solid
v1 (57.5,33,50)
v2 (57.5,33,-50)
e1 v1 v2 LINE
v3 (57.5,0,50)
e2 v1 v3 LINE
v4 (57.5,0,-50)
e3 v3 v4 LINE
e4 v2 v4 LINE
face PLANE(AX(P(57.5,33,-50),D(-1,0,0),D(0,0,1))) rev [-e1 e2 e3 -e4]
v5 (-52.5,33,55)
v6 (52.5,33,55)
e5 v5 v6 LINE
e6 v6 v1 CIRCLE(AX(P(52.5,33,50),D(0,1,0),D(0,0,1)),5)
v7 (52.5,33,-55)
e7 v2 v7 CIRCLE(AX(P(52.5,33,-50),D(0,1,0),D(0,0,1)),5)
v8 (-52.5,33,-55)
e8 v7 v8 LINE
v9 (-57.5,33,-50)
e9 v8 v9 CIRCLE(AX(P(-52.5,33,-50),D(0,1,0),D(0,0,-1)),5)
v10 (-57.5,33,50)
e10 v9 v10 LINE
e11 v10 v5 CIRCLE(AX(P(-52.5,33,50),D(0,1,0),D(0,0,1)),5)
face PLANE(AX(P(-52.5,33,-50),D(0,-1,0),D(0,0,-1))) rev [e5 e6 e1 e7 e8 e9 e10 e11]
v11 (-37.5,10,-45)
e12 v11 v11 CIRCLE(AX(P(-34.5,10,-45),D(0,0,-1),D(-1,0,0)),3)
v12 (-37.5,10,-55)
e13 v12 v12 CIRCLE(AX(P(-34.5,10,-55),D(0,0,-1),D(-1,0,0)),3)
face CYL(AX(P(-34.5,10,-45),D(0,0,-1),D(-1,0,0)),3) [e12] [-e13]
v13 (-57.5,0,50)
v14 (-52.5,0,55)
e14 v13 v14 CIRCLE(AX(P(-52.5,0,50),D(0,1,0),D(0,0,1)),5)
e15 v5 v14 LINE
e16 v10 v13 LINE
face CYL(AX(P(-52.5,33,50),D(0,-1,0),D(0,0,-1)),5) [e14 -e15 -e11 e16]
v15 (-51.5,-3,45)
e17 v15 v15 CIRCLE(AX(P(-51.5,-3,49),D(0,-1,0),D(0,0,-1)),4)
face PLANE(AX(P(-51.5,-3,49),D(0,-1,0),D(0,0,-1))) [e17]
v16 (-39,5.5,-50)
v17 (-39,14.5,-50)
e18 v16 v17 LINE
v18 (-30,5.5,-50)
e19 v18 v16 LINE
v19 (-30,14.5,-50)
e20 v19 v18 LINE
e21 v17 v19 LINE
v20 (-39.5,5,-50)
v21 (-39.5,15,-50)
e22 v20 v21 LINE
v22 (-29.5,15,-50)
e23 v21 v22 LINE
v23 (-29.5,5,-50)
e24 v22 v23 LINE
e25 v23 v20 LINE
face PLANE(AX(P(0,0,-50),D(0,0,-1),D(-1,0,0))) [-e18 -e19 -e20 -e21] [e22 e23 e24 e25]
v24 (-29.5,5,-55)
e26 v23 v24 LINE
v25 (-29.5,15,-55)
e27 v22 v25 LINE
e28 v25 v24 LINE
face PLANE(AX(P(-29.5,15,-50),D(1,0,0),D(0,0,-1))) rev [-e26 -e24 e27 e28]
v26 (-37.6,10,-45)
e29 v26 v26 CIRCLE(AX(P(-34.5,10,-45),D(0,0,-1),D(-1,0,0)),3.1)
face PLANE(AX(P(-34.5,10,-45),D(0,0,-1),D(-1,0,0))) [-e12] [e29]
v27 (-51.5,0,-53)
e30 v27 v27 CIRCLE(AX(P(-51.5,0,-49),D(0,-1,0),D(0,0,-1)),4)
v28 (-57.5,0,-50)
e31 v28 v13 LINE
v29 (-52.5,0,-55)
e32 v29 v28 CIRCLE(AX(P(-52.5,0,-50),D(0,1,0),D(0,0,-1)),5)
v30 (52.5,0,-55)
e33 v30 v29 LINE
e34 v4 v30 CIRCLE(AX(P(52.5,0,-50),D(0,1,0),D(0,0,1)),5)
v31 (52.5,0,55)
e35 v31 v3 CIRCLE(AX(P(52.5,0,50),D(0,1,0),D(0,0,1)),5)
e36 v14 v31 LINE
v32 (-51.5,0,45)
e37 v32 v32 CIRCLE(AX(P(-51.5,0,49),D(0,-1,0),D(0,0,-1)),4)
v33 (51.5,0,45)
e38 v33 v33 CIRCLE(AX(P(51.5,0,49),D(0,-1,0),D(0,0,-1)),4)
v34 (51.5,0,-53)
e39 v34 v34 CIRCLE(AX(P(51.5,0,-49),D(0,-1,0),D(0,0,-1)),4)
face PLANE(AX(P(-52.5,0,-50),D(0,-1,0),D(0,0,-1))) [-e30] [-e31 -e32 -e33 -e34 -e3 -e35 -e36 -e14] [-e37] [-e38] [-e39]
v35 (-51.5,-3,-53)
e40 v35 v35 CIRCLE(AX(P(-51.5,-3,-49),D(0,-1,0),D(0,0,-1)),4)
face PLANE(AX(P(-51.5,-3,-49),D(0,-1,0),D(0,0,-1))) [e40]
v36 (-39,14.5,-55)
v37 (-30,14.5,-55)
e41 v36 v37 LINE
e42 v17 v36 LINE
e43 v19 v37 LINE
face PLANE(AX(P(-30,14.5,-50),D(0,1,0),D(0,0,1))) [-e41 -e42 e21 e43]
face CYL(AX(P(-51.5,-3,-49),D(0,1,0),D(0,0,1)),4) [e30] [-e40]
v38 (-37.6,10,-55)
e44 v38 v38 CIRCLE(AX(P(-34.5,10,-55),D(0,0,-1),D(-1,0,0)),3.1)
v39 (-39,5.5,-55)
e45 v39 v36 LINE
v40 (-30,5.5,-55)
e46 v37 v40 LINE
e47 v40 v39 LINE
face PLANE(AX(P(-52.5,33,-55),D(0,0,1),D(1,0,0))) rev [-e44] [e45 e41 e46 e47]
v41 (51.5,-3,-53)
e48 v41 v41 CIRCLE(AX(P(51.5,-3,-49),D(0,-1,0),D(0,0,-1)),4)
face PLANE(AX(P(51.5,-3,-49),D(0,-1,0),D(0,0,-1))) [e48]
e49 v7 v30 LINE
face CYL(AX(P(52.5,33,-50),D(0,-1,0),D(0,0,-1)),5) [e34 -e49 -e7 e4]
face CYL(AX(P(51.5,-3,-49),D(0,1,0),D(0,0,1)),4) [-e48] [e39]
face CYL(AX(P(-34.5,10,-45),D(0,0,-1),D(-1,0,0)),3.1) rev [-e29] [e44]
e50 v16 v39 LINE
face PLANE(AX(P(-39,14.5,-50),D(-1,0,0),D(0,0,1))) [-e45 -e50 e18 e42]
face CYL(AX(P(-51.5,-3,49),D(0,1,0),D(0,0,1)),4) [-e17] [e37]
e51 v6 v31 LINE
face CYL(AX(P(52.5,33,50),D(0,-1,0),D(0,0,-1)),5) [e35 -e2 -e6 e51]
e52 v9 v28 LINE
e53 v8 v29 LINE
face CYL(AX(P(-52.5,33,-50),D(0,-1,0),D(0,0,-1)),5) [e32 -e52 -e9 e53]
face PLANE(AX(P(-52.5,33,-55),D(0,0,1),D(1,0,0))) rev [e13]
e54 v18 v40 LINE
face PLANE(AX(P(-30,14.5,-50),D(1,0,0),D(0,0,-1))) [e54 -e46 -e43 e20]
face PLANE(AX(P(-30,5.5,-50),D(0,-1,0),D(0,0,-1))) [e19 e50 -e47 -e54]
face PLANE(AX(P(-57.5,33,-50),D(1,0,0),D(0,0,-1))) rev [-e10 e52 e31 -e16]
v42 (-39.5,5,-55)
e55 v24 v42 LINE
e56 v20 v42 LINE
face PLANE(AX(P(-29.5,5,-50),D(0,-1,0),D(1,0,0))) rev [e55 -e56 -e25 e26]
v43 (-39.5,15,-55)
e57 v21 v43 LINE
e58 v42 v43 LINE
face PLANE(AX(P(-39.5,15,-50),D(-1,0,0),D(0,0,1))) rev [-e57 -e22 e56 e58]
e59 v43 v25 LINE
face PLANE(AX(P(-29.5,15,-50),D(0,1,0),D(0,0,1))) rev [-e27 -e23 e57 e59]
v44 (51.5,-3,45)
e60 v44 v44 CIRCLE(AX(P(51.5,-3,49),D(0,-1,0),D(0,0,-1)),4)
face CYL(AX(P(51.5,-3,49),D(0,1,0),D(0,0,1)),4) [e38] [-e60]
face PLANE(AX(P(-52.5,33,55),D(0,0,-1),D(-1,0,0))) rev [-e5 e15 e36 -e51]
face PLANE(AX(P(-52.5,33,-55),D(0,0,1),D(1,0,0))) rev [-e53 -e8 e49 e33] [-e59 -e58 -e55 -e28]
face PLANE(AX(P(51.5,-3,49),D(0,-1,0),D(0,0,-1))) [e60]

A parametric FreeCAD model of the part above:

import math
import FreeCAD as App
import Part
import Sketcher
Q = App.Units.Quantity


def add_polygon(sketch, points):
    """Adds a closed chain of lines whose ends are joined by coincident constraints."""
    first, n = sketch.GeometryCount, len(points)
    for a, b in zip(points, points[1:] + points[:1]):
        sketch.addGeometry(Part.LineSegment(App.Vector(*a, 0), App.Vector(*b, 0)), False)
    for i in range(n):
        sketch.addConstraint(Sketcher.Constraint("Coincident", first + i, 2, first + (i + 1) % n, 1))

doc = App.newDocument("Part")
body = doc.addObject("PartDesign::Body", "Body")

# Sketch on XZ plane
sketch1 = body.newObject("Sketcher::SketchObject", "Sketch")
sketch1.AttachmentSupport = (doc.getObject("XZ_Plane"), [""])
sketch1.MapMode = "FlatFace"
sketch1.addGeometry(Part.LineSegment(App.Vector(52, -55, 0), App.Vector(-52, -55, 0)), False)
sketch1.addGeometry(Part.ArcOfCircle(Part.Circle(App.Vector(-52, -50, 0), App.Vector(0, 0, 1), 5), math.radians(180), math.radians(270)), False)
sketch1.addGeometry(Part.LineSegment(App.Vector(-58, -50, 0), App.Vector(-58, 50, 0)), False)
sketch1.addGeometry(Part.ArcOfCircle(Part.Circle(App.Vector(-52, 50, 0), App.Vector(0, 0, 1), 5), math.radians(90), math.radians(180)), False)
sketch1.addGeometry(Part.LineSegment(App.Vector(-52, 55, 0), App.Vector(52, 55, 0)), False)
sketch1.addGeometry(Part.ArcOfCircle(Part.Circle(App.Vector(52, 50, 0), App.Vector(0, 0, 1), 5), math.radians(0), math.radians(90)), False)
sketch1.addGeometry(Part.LineSegment(App.Vector(58, 50, 0), App.Vector(58, -50, 0)), False)
sketch1.addGeometry(Part.ArcOfCircle(Part.Circle(App.Vector(52, -50, 0), App.Vector(0, 0, 1), 5), math.radians(-90), math.radians(0)), False)
sketch1.addConstraint(Sketcher.Constraint("Tangent", 0, 2, 1, 2))
sketch1.addConstraint(Sketcher.Constraint("Tangent", 1, 1, 2, 1))
sketch1.addConstraint(Sketcher.Constraint("Tangent", 2, 2, 3, 2))
sketch1.addConstraint(Sketcher.Constraint("Tangent", 3, 1, 4, 1))
sketch1.addConstraint(Sketcher.Constraint("Tangent", 4, 2, 5, 2))
sketch1.addConstraint(Sketcher.Constraint("Tangent", 5, 1, 6, 1))
sketch1.addConstraint(Sketcher.Constraint("Tangent", 6, 2, 7, 2))
sketch1.addConstraint(Sketcher.Constraint("Tangent", 7, 1, 0, 1))
sketch1.addConstraint(Sketcher.Constraint("Horizontal", 0))
sketch1.addConstraint(Sketcher.Constraint("Vertical", 2))
sketch1.addConstraint(Sketcher.Constraint("Horizontal", 4))
sketch1.addConstraint(Sketcher.Constraint("Vertical", 6))
sketch1.addConstraint(Sketcher.Constraint("Equal", 1, 3))
sketch1.addConstraint(Sketcher.Constraint("Equal", 3, 5))
sketch1.addConstraint(Sketcher.Constraint("Equal", 5, 7))
sketch1.addConstraint(Sketcher.Constraint("Symmetric", 1, 3, 5, 3, -1, 1))
sketch1.addConstraint(Sketcher.Constraint("Radius", 1, Q("5 mm")))
sketch1.addConstraint(Sketcher.Constraint("DistanceX", 0, 2, 0, 1, Q("105 mm")))
sketch1.addConstraint(Sketcher.Constraint("DistanceY", 2, 1, 2, 2, Q("100 mm")))
pad1 = body.newObject("PartDesign::Pad", "Pad")
pad1.Profile = sketch1
pad1.Length = 33
pad1.Reversed = True

# Sketch on XZ plane
sketch2 = body.newObject("Sketcher::SketchObject", "Sketch001")
sketch2.AttachmentSupport = (doc.getObject("XZ_Plane"), [""])
sketch2.MapMode = "FlatFace"
sketch2.addGeometry(Part.Circle(App.Vector(-51.5, 49, 0), App.Vector(0, 0, 1), 4), False)
sketch2.addGeometry(Part.Circle(App.Vector(51.5, 49, 0), App.Vector(0, 0, 1), 4), False)
sketch2.addGeometry(Part.Circle(App.Vector(-51.5, -49, 0), App.Vector(0, 0, 1), 4), False)
sketch2.addGeometry(Part.Circle(App.Vector(51.5, -49, 0), App.Vector(0, 0, 1), 4), False)
sketch2.addConstraint(Sketcher.Constraint("Equal", 0, 1))
sketch2.addConstraint(Sketcher.Constraint("Equal", 1, 2))
sketch2.addConstraint(Sketcher.Constraint("Equal", 2, 3))
sketch2.addConstraint(Sketcher.Constraint("Symmetric", 1, 3, 2, 3, -1, 1))
sketch2.addConstraint(Sketcher.Constraint("Symmetric", 0, 3, 3, 3, -1, 1))
sketch2.addConstraint(Sketcher.Constraint("Symmetric", 0, 3, 1, 3, -2))
sketch2.addConstraint(Sketcher.Constraint("Diameter", 0, Q("8 mm")))
sketch2.addConstraint(Sketcher.Constraint("DistanceY", -1, 1, 0, 3, Q("49 mm")))
sketch2.addConstraint(Sketcher.Constraint("DistanceX", 0, 3, 1, 3, Q("103 mm")))
pad2 = body.newObject("PartDesign::Pad", "Pad001")
pad2.Profile = sketch2
pad2.Length = 3

# Sketch on XY plane
sketch3 = body.newObject("Sketcher::SketchObject", "Sketch002")
sketch3.AttachmentSupport = (doc.getObject("XY_Plane"), [""])
sketch3.MapMode = "FlatFace"
sketch3.AttachmentOffset = App.Placement(App.Vector(0, 0, -55), App.Rotation())
add_polygon(sketch3, [(-30, 15), (-30, 5), (-40, 5), (-40, 15)])  # lines 0-3
add_polygon(sketch3, [(-39, 6), (-30, 6), (-30, 14), (-39, 14)])  # lines 4-7
sketch3.addConstraint(Sketcher.Constraint("Vertical", 0))
sketch3.addConstraint(Sketcher.Constraint("Horizontal", 1))
sketch3.addConstraint(Sketcher.Constraint("Vertical", 2))
sketch3.addConstraint(Sketcher.Constraint("Horizontal", 3))
sketch3.addConstraint(Sketcher.Constraint("Horizontal", 4))
sketch3.addConstraint(Sketcher.Constraint("Vertical", 5))
sketch3.addConstraint(Sketcher.Constraint("Horizontal", 6))
sketch3.addConstraint(Sketcher.Constraint("Vertical", 7))
sketch3.addConstraint(Sketcher.Constraint("Equal", 3, 0))
sketch3.addConstraint(Sketcher.Constraint("Equal", 6, 5))
sketch3.addConstraint(Sketcher.Constraint("DistanceX", 1, 2, 1, 1, Q("10 mm")))
sketch3.addConstraint(Sketcher.Constraint("DistanceX", 4, 1, 4, 2, Q("9 mm")))
sketch3.addConstraint(Sketcher.Constraint("DistanceY", -1, 1, 0, 2, Q("5 mm")))
sketch3.addConstraint(Sketcher.Constraint("DistanceX", 4, 2, -1, 1, Q("30 mm")))
sketch3.addConstraint(Sketcher.Constraint("DistanceX", 0, 2, -1, 1, Q("29.5 mm")))
sketch3.addConstraint(Sketcher.Constraint("DistanceY", -1, 1, 4, 2, Q("5.5 mm")))
pocket1 = body.newObject("PartDesign::Pocket", "Pocket")
pocket1.Profile = sketch3
pocket1.Length = 5
pocket1.Reversed = True

# Sketch on XY plane
sketch4 = body.newObject("Sketcher::SketchObject", "Sketch003")
sketch4.AttachmentSupport = (doc.getObject("XY_Plane"), [""])
sketch4.MapMode = "FlatFace"
sketch4.AttachmentOffset = App.Placement(App.Vector(0, 0, -55), App.Rotation())
sketch4.addGeometry(Part.Circle(App.Vector(-34.5, 10, 0), App.Vector(0, 0, 1), 3.1), False)
sketch4.addGeometry(Part.Circle(App.Vector(-34.5, 10, 0), App.Vector(0, 0, 1), 3), False)
sketch4.addConstraint(Sketcher.Constraint("Coincident", 1, 3, 0, 3))
sketch4.addConstraint(Sketcher.Constraint("Diameter", 1, Q("6 mm")))
sketch4.addConstraint(Sketcher.Constraint("Diameter", 0, Q("6.2 mm")))
sketch4.addConstraint(Sketcher.Constraint("DistanceY", -1, 1, 0, 3, Q("10 mm")))
sketch4.addConstraint(Sketcher.Constraint("DistanceX", 0, 3, -1, 1, Q("34.5 mm")))
pocket2 = body.newObject("PartDesign::Pocket", "Pocket001")
pocket2.Profile = sketch4
pocket2.Length = 10
pocket2.Reversed = True

doc.recompute()
